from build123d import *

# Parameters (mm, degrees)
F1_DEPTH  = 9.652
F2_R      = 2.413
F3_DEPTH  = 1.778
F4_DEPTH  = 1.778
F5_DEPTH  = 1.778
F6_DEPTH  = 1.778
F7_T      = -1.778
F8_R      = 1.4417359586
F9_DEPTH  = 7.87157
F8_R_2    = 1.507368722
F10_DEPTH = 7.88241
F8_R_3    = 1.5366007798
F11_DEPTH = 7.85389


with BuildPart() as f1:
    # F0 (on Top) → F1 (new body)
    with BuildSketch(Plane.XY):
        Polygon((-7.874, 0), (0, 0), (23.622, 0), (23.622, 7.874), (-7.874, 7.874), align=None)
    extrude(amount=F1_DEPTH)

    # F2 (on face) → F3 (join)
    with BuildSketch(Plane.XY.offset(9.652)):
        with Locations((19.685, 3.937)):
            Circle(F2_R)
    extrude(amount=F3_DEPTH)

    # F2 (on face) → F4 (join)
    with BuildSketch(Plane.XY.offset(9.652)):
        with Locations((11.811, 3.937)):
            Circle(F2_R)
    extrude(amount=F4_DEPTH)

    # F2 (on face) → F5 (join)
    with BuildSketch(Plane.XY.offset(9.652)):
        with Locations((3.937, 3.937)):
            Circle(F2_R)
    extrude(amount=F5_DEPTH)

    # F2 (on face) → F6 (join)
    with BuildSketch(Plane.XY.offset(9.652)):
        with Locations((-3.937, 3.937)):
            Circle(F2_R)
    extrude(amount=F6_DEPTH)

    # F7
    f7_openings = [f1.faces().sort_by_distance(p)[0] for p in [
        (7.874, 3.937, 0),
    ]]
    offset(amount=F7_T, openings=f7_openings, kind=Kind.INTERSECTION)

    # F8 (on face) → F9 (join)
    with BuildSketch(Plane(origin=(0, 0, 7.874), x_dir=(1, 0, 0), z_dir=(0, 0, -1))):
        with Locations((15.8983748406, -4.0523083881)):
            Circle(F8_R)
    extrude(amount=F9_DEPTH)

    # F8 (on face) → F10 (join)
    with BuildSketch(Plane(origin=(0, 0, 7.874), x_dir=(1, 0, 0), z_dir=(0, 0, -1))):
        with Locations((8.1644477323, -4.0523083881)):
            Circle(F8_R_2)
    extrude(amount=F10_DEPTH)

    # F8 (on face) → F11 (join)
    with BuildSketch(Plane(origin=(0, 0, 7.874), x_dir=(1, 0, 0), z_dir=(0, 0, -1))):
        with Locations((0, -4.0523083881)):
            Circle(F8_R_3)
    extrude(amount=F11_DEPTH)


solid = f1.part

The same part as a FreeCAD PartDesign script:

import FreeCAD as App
import Part
import Sketcher
Q = App.Units.Quantity


def faces_at(feature, points):
    """Names of the faces that lie closest to the given points."""
    faces = feature.Shape.Faces
    near = lambda p: min(range(len(faces)), key=lambda i: faces[i].distToShape(Part.Vertex(*p))[0])
    return sorted({f"Face{near(p) + 1}" for p in points})

doc = App.newDocument("Part")
body = doc.addObject("PartDesign::Body", "Body")

sketch1 = body.newObject("Sketcher::SketchObject", "Sketch")
sketch1.AttachmentSupport = (doc.getObject("XY_Plane"), [""])
sketch1.MapMode = "FlatFace"
sketch1.addGeometry([
    Part.LineSegment(App.Vector(-8, 0, 0), App.Vector(24, 0, 0)),
    Part.LineSegment(App.Vector(24, 0, 0), App.Vector(24, 8, 0)),
    Part.LineSegment(App.Vector(24, 8, 0), App.Vector(-8, 8, 0)),
    Part.LineSegment(App.Vector(-8, 8, 0), App.Vector(-8, 0, 0)),
], False)
sketch1.addConstraint([
    Sketcher.Constraint("Coincident", 0, 2, 1, 1),
    Sketcher.Constraint("Coincident", 1, 2, 2, 1),
    Sketcher.Constraint("Coincident", 2, 2, 3, 1),
    Sketcher.Constraint("Coincident", 3, 2, 0, 1),
    Sketcher.Constraint("Horizontal", 0),
    Sketcher.Constraint("Vertical", 1),
    Sketcher.Constraint("Horizontal", 2),
    Sketcher.Constraint("Vertical", 3),
    Sketcher.Constraint("PointOnObject", 0, 2, -1),
    Sketcher.Constraint("DistanceX", 0, 1, 0, 2, Q("1.24 in")),
    Sketcher.Constraint("DistanceY", 1, 1, 1, 2, Q("0.31 in")),
    Sketcher.Constraint("DistanceX", -1, 1, 0, 2, Q("0.93 in")),
])
pad1 = body.newObject("PartDesign::Pad", "Pad")
pad1.Profile = sketch1
pad1.Length = Q("0.38 in")

sketch2 = body.newObject("Sketcher::SketchObject", "Sketch001")
sketch2.AttachmentSupport = (doc.getObject("XY_Plane"), [""])
sketch2.MapMode = "FlatFace"
sketch2.AttachmentOffset = App.Placement(App.Vector(0, 0, 0.38 * 25.4), App.Rotation())
sketch2.addGeometry(Part.Circle(App.Vector(19.7, 3.9, 0), App.Vector(0, 0, 1), 2.4), False)
sketch2.addConstraint([
    Sketcher.Constraint("Diameter", 0, Q("0.19 in")),
    Sketcher.Constraint("DistanceX", -1, 1, 0, 3, Q("0.775 in")),
    Sketcher.Constraint("DistanceY", -1, 1, 0, 3, Q("0.155 in")),
])
pad2 = body.newObject("PartDesign::Pad", "Pad001")
pad2.Profile = sketch2
pad2.Length = Q("0.07 in")

sketch3 = body.newObject("Sketcher::SketchObject", "Sketch002")
sketch3.AttachmentSupport = (doc.getObject("XY_Plane"), [""])
sketch3.MapMode = "FlatFace"
sketch3.AttachmentOffset = App.Placement(App.Vector(0, 0, 0.38 * 25.4), App.Rotation())
sketch3.addGeometry(Part.Circle(App.Vector(11.8, 3.9, 0), App.Vector(0, 0, 1), 2.4), False)
sketch3.addConstraint([
    Sketcher.Constraint("Diameter", 0, Q("0.19 in")),
    Sketcher.Constraint("DistanceX", -1, 1, 0, 3, Q("0.465 in")),
    Sketcher.Constraint("DistanceY", -1, 1, 0, 3, Q("0.155 in")),
])
pad3 = body.newObject("PartDesign::Pad", "Pad002")
pad3.Profile = sketch3
pad3.Length = Q("0.07 in")

sketch4 = body.newObject("Sketcher::SketchObject", "Sketch003")
sketch4.AttachmentSupport = (doc.getObject("XY_Plane"), [""])
sketch4.MapMode = "FlatFace"
sketch4.AttachmentOffset = App.Placement(App.Vector(0, 0, 0.38 * 25.4), App.Rotation())
sketch4.addGeometry(Part.Circle(App.Vector(3.9, 3.9, 0), App.Vector(0, 0, 1), 2.4), False)
sketch4.addConstraint([
    Sketcher.Constraint("Diameter", 0, Q("0.19 in")),
    Sketcher.Constraint("DistanceX", -1, 1, 0, 3, Q("0.155 in")),
    Sketcher.Constraint("DistanceY", -1, 1, 0, 3, Q("0.155 in")),
])
pad4 = body.newObject("PartDesign::Pad", "Pad003")
pad4.Profile = sketch4
pad4.Length = Q("0.07 in")

sketch5 = body.newObject("Sketcher::SketchObject", "Sketch004")
sketch5.AttachmentSupport = (doc.getObject("XY_Plane"), [""])
sketch5.MapMode = "FlatFace"
sketch5.AttachmentOffset = App.Placement(App.Vector(0, 0, 0.38 * 25.4), App.Rotation())
sketch5.addGeometry(Part.Circle(App.Vector(-3.9, 3.9, 0), App.Vector(0, 0, 1), 2.4), False)
sketch5.addConstraint([
    Sketcher.Constraint("Diameter", 0, Q("0.19 in")),
    Sketcher.Constraint("DistanceX", 0, 3, -1, 1, Q("0.155 in")),
    Sketcher.Constraint("DistanceY", -1, 1, 0, 3, Q("0.155 in")),
])
pad5 = body.newObject("PartDesign::Pad", "Pad004")
pad5.Profile = sketch5
pad5.Length = Q("0.07 in")
doc.recompute()

thickness = body.newObject("PartDesign::Thickness", "Thickness")
thickness.Base = (pad5, faces_at(pad5, [(7.874, 3.937, 0)]))
thickness.Value = Q("0.07 in")
thickness.Reversed = True
thickness.Join = "Intersection"

sketch6 = body.newObject("Sketcher::SketchObject", "Sketch005")
sketch6.AttachmentSupport = (doc.getObject("XY_Plane"), [""])
sketch6.MapMode = "FlatFace"
sketch6.AttachmentOffset = App.Placement(App.Vector(0, 0, 0.31 * 25.4), App.Rotation())
sketch6.addGeometry(Part.Circle(App.Vector(15.9, 4.1, 0), App.Vector(0, 0, 1), 1.4), False)
sketch6.addConstraint([
    Sketcher.Constraint("Diameter", 0, 2.883472),
    Sketcher.Constraint("DistanceY", -1, 1, 0, 3, 4.052308),
    Sketcher.Constraint("DistanceX", -1, 1, 0, 3, 15.898375),
])
pad6 = body.newObject("PartDesign::Pad", "Pad005")
pad6.Profile = sketch6
pad6.Length = 7.87157
pad6.Reversed = True

sketch7 = body.newObject("Sketcher::SketchObject", "Sketch006")
sketch7.AttachmentSupport = (doc.getObject("XY_Plane"), [""])
sketch7.MapMode = "FlatFace"
sketch7.AttachmentOffset = App.Placement(App.Vector(0, 0, 0.31 * 25.4), App.Rotation())
sketch7.addGeometry(Part.Circle(App.Vector(8.2, 4.1, 0), App.Vector(0, 0, 1), 1.5), False)
sketch7.addConstraint([
    Sketcher.Constraint("Diameter", 0, 3.014737),
    Sketcher.Constraint("DistanceY", -1, 1, 0, 3, 4.052308),
    Sketcher.Constraint("DistanceX", -1, 1, 0, 3, 8.164448),
])
pad7 = body.newObject("PartDesign::Pad", "Pad006")
pad7.Profile = sketch7
pad7.Length = 7.88241
pad7.Reversed = True

sketch8 = body.newObject("Sketcher::SketchObject", "Sketch007")
sketch8.AttachmentSupport = (doc.getObject("XY_Plane"), [""])
sketch8.MapMode = "FlatFace"
sketch8.AttachmentOffset = App.Placement(App.Vector(0, 0, 0.31 * 25.4), App.Rotation())
sketch8.addGeometry(Part.Circle(App.Vector(0, 4.1, 0), App.Vector(0, 0, 1), 1.5), False)
sketch8.addConstraint([
    Sketcher.Constraint("PointOnObject", 0, 3, -2),
    Sketcher.Constraint("Diameter", 0, 3.073202),
    Sketcher.Constraint("DistanceY", -1, 1, 0, 3, 4.052308),
])
pad8 = body.newObject("PartDesign::Pad", "Pad007")
pad8.Profile = sketch8
pad8.Length = 7.85389
pad8.Reversed = True

doc.recompute()
